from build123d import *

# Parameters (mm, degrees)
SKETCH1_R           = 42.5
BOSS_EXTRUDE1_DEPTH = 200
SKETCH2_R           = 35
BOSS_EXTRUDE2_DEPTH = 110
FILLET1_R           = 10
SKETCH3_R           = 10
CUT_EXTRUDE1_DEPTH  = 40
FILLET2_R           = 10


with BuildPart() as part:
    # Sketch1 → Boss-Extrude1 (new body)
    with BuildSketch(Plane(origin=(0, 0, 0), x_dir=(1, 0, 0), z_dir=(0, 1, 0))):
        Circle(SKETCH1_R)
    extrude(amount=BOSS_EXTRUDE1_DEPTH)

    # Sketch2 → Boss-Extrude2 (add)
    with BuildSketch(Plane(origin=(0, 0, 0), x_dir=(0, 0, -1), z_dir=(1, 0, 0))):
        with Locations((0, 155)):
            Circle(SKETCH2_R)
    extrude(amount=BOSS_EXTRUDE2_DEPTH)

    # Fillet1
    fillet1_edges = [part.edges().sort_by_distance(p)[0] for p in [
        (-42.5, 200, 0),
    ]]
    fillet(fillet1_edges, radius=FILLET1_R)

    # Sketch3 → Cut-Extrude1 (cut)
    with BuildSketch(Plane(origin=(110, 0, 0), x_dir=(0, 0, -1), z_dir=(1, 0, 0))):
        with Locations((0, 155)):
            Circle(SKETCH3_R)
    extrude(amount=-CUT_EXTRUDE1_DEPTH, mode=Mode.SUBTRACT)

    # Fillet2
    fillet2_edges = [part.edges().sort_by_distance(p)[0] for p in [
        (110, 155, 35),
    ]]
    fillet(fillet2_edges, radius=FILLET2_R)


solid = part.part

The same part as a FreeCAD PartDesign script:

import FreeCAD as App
import Part
import Sketcher
from FreeCAD import Vector


def edges_at(feature, points):
    """Names of the edges that pass closest to the given points."""
    edges = feature.Shape.Edges
    near = lambda p: min(range(len(edges)), key=lambda i: edges[i].distToShape(Part.Vertex(*p))[0])
    return sorted({f"Edge{near(p) + 1}" for p in points})

doc = App.newDocument("Part")
body = doc.addObject("PartDesign::Body", "Body")

# Sketch on XZ plane
sketch1 = body.newObject("Sketcher::SketchObject", "Sketch")
sketch1.AttachmentSupport = (doc.getObject("XZ_Plane"), [""])
sketch1.MapMode = "FlatFace"
sketch1.addGeometry(Part.Circle(Vector(0, 0, 0), Vector(0, 0, 1), 42), False)
sketch1.addConstraint([
    Sketcher.Constraint("Coincident", 0, 3, -1, 1),
    Sketcher.Constraint("Diameter", 0, 85.0),
])
pad1 = body.newObject("PartDesign::Pad", "Pad")
pad1.Profile = sketch1
pad1.Length = 200
pad1.Reversed = True

# Sketch on YZ plane
sketch2 = body.newObject("Sketcher::SketchObject", "Sketch001")
sketch2.AttachmentSupport = (doc.getObject("YZ_Plane"), [""])
sketch2.MapMode = "FlatFace"
sketch2.addGeometry(Part.Circle(Vector(155, 0, 0), Vector(0, 0, 1), 35), False)
sketch2.addConstraint([
    Sketcher.Constraint("PointOnObject", 0, 3, -1),
    Sketcher.Constraint("Diameter", 0, 70.0),
    Sketcher.Constraint("DistanceX", -1, 1, 0, 3, 155.0),
])
pad2 = body.newObject("PartDesign::Pad", "Pad001")
pad2.Profile = sketch2
pad2.Length = 110
doc.recompute()

fillet = body.newObject("PartDesign::Fillet", "Fillet")
fillet.Base = (pad2, edges_at(pad2, [(-42.5, 200, 0)]))
fillet.Radius = 10

# Sketch on YZ plane
sketch3 = body.newObject("Sketcher::SketchObject", "Sketch002")
sketch3.AttachmentSupport = (doc.getObject("YZ_Plane"), [""])
sketch3.MapMode = "FlatFace"
sketch3.AttachmentOffset = App.Placement(Vector(0, 0, 110), App.Rotation())
sketch3.addGeometry(Part.Circle(Vector(155, 0, 0), Vector(0, 0, 1), 10), False)
sketch3.addConstraint([
    Sketcher.Constraint("PointOnObject", 0, 3, -1),
    Sketcher.Constraint("Diameter", 0, 20.0),
    Sketcher.Constraint("DistanceX", -1, 1, 0, 3, 155.0),
])
pocket1 = body.newObject("PartDesign::Pocket", "Pocket")
pocket1.Profile = sketch3
pocket1.Length = 40
doc.recompute()

fillet2 = body.newObject("PartDesign::Fillet", "Fillet001")
fillet2.Base = (pocket1, edges_at(pocket1, [(110, 155, 35)]))
fillet2.Radius = 10

doc.recompute()
